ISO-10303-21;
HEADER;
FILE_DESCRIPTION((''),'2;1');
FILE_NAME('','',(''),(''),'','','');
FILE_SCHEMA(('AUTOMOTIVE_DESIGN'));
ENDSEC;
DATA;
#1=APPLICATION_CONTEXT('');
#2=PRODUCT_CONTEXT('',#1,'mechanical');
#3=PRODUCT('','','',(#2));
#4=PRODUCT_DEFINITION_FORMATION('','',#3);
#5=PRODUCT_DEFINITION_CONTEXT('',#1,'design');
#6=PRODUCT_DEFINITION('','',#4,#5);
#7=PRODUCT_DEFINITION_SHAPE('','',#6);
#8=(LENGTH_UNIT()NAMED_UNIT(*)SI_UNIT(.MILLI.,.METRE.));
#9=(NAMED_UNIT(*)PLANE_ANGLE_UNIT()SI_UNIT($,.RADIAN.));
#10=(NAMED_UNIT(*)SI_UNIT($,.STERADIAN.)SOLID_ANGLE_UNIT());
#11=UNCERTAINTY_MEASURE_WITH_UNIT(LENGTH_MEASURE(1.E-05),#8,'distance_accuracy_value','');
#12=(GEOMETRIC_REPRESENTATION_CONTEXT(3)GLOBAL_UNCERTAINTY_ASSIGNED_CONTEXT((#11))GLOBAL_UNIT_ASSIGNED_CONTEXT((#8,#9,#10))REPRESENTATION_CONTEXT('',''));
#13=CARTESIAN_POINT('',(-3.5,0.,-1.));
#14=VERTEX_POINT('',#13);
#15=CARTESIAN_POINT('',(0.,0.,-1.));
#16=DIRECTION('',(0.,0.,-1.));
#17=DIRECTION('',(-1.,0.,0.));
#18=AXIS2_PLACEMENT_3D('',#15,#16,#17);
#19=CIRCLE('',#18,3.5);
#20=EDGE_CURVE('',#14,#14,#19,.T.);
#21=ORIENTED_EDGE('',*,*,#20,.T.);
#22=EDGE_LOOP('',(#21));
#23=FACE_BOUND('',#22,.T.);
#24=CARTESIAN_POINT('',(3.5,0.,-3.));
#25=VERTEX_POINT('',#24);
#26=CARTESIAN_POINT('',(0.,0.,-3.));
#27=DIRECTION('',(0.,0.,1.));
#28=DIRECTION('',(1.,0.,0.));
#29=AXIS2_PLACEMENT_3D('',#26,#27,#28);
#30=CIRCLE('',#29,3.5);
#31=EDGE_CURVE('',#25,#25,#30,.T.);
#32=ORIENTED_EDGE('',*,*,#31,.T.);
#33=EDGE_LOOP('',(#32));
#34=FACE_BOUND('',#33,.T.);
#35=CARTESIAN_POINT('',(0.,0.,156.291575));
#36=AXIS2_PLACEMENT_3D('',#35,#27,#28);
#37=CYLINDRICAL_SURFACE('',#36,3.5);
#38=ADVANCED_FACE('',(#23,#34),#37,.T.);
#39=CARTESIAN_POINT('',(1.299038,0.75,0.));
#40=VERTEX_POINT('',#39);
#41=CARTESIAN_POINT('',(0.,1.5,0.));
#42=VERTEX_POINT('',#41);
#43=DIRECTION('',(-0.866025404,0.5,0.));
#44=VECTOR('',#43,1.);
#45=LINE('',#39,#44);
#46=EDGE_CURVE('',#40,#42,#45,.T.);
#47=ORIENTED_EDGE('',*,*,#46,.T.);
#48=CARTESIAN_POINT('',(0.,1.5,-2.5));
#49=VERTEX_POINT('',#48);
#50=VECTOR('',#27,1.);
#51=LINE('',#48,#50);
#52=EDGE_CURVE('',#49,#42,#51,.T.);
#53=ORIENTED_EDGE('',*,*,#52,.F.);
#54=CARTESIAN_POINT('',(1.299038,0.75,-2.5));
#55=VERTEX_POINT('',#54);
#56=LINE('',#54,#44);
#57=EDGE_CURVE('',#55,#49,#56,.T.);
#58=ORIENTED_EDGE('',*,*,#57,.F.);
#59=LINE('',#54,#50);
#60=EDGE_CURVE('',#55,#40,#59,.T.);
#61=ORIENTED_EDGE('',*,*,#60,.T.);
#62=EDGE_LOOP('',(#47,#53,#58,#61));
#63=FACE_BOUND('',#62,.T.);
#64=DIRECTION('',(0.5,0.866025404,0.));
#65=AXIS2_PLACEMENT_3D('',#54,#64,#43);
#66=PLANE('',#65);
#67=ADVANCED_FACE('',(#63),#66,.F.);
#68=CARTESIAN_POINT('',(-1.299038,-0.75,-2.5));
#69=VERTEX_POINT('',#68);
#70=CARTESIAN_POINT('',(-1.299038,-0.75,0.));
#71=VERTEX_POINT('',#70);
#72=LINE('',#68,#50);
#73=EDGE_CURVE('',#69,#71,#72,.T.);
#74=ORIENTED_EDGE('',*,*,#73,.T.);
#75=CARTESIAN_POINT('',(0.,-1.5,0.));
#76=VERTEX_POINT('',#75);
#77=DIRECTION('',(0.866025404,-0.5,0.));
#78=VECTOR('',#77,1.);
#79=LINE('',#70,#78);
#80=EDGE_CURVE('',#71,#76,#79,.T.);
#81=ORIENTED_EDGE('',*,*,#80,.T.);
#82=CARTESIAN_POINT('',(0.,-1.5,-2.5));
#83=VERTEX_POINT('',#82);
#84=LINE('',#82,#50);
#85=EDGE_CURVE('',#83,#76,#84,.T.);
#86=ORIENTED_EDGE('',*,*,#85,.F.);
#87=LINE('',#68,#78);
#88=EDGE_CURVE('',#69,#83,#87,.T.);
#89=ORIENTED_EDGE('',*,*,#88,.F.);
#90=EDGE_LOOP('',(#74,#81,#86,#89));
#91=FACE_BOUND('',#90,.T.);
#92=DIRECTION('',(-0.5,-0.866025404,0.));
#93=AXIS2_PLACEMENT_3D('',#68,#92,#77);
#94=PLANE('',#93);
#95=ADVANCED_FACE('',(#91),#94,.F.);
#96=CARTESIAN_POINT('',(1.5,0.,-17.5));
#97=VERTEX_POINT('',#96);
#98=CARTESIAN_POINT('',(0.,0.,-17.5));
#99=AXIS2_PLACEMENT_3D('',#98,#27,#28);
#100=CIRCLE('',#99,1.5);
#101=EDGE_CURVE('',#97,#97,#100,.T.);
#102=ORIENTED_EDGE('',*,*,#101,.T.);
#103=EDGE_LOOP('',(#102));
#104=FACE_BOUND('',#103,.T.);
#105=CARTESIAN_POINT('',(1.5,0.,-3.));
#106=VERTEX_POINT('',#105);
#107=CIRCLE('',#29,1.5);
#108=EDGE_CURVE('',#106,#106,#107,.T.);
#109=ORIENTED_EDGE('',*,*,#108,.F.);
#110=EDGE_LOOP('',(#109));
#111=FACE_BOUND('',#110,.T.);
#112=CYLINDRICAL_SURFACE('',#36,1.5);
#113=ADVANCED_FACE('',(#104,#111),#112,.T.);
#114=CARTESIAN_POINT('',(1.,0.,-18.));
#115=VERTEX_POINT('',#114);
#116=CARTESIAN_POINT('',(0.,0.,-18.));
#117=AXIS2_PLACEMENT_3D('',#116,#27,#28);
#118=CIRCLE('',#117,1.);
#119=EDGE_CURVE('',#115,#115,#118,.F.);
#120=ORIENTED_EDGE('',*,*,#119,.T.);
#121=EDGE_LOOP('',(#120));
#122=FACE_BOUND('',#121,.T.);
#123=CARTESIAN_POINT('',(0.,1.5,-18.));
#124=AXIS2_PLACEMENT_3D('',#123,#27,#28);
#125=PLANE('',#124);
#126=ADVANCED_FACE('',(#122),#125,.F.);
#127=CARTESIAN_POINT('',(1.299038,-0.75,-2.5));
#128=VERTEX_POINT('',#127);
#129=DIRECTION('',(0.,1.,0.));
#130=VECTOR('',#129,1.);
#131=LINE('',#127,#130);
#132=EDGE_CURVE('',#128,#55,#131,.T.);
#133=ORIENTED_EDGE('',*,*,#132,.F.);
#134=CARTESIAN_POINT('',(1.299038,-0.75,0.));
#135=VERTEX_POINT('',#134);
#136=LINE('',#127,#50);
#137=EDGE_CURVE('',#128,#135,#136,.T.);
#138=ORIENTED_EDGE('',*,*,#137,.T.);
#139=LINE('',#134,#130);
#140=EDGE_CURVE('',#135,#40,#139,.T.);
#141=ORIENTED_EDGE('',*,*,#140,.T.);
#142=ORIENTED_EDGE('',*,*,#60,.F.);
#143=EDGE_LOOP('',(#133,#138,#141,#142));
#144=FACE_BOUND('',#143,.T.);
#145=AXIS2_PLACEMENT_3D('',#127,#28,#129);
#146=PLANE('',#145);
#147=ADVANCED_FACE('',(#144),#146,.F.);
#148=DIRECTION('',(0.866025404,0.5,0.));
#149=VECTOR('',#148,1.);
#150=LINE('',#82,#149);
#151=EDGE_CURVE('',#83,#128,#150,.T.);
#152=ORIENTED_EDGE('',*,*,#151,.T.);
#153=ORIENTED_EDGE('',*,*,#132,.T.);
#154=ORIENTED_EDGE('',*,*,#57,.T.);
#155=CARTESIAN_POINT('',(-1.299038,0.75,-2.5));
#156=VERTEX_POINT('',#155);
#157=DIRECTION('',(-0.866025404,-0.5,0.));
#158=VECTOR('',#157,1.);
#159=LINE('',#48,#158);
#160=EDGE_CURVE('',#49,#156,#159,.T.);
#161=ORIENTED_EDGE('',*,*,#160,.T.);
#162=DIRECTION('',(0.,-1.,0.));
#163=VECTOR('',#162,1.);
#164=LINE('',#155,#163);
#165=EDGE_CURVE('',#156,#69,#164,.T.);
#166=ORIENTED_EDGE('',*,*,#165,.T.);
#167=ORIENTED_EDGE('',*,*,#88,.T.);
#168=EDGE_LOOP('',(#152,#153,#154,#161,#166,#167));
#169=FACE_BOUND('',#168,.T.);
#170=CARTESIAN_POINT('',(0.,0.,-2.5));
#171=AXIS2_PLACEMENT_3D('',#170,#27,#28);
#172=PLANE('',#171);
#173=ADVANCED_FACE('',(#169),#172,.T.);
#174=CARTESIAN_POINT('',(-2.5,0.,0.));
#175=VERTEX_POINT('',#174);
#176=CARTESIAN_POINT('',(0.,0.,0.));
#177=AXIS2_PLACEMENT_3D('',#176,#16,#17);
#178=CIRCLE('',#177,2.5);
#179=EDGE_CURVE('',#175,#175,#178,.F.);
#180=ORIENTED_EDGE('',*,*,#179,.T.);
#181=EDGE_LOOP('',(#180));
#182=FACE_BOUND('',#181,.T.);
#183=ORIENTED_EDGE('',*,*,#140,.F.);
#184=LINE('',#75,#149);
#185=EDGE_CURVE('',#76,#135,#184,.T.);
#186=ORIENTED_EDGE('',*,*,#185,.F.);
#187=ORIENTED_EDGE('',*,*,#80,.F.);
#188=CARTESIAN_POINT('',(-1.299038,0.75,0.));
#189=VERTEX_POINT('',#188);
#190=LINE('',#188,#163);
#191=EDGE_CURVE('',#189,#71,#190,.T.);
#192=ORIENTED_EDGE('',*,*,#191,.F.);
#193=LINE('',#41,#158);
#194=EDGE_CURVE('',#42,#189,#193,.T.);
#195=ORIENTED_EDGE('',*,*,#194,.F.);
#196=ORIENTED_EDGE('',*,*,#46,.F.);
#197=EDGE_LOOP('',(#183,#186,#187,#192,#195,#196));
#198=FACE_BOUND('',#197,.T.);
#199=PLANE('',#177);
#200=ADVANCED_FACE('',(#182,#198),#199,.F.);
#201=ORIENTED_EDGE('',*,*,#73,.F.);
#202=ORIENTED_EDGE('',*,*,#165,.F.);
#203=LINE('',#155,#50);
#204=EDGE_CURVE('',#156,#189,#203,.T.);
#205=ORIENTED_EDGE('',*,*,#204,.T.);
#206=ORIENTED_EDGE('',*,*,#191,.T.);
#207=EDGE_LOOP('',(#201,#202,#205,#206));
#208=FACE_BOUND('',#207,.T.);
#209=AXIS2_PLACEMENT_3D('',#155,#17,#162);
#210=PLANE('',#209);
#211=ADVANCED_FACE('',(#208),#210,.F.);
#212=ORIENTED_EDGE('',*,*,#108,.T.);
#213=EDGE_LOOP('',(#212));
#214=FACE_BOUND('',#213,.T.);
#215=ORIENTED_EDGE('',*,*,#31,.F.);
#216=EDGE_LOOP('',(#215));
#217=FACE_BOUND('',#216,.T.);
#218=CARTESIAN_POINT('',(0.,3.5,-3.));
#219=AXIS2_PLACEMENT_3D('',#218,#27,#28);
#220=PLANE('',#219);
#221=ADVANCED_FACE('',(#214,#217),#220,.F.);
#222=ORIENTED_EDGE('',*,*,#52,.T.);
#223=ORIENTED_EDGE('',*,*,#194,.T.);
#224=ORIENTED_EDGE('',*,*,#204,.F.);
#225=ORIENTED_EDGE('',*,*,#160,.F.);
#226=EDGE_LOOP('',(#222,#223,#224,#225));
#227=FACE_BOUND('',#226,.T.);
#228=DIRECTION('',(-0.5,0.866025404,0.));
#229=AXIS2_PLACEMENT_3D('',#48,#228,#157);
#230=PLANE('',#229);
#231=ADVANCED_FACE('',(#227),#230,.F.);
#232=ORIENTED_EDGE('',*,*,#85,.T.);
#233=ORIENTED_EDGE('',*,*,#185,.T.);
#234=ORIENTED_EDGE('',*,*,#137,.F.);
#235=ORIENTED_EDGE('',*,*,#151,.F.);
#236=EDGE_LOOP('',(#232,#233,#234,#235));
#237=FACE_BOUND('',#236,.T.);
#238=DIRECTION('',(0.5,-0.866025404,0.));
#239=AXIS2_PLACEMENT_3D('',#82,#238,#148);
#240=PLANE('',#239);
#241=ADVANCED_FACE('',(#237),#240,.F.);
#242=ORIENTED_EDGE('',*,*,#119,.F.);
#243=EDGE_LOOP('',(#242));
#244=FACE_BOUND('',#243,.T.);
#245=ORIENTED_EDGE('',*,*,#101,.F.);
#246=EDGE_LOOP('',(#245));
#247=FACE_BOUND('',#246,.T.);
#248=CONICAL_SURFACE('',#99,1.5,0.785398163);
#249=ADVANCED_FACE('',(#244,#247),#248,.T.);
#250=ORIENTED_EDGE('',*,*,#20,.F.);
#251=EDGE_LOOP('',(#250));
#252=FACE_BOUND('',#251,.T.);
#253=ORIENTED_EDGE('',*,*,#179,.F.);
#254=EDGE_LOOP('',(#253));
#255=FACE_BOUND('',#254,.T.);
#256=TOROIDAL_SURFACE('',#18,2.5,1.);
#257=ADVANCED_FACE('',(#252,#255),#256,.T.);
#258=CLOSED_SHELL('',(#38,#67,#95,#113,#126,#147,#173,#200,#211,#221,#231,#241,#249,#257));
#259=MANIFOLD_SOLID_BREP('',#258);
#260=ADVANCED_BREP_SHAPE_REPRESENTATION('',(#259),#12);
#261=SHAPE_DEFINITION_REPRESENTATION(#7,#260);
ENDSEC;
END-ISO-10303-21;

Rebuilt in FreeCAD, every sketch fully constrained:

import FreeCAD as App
import Part
import Sketcher
Q = App.Units.Quantity


def edges_at(feature, points):
    """Names of the edges that pass closest to the given points."""
    edges = feature.Shape.Edges
    near = lambda p: min(range(len(edges)), key=lambda i: edges[i].distToShape(Part.Vertex(*p))[0])
    return sorted({f"Edge{near(p) + 1}" for p in points})


def add_polygon(sketch, points):
    """Adds a closed chain of lines whose ends are joined by coincident constraints."""
    first, n = sketch.GeometryCount, len(points)
    for a, b in zip(points, points[1:] + points[:1]):
        sketch.addGeometry(Part.LineSegment(App.Vector(*a, 0), App.Vector(*b, 0)), False)
    for i in range(n):
        sketch.addConstraint(Sketcher.Constraint("Coincident", first + i, 2, first + (i + 1) % n, 1))

doc = App.newDocument("Part")
body = doc.addObject("PartDesign::Body", "Body")

# Sketch on YZ plane
sketch1 = body.newObject("Sketcher::SketchObject", "Sketch")
sketch1.AttachmentSupport = (doc.getObject("YZ_Plane"), [""])
sketch1.MapMode = "FlatFace"
add_polygon(sketch1, [(3.5, 0), (0, 0), (0, -18), (1.5, -18), (1.5, -3), (3.5, -3)])  # lines 0-5
sketch1.addConstraint([
    Sketcher.Constraint("Horizontal", 0),
    Sketcher.Constraint("Vertical", 1),
    Sketcher.Constraint("Horizontal", 2),
    Sketcher.Constraint("Vertical", 3),
    Sketcher.Constraint("Horizontal", 4),
    Sketcher.Constraint("Vertical", 5),
    Sketcher.Constraint("Coincident", 0, 2, -1, 1),
    Sketcher.Constraint("DistanceX", 4, 1, 4, 2, 2.0),
    Sketcher.Constraint("DistanceY", 1, 2, 1, 1, 18.0),
    Sketcher.Constraint("DistanceY", 3, 1, 3, 2, 15.0),
    Sketcher.Constraint("DistanceX", 0, 2, 0, 1, 3.5),
])
revolution = body.newObject("PartDesign::Revolution", "Revolution")
revolution.Profile = sketch1
revolution.ReferenceAxis = (sketch1, ["V_Axis"])
revolution.Angle = 360

# Sketch on XY plane
sketch2 = body.newObject("Sketcher::SketchObject", "Sketch001")
sketch2.AttachmentSupport = (doc.getObject("XY_Plane"), [""])
sketch2.MapMode = "FlatFace"
add_polygon(sketch2, [(0, 1.5), (-1.299038, 0.75), (-1.299038, -0.75), (0, -1.5), (1.299038, -0.75), (1.299038, 0.75)])  # lines 0-5
sketch2.addConstraint([
    Sketcher.Constraint("Vertical", 1),
    Sketcher.Constraint("Vertical", 4),
    Sketcher.Constraint("Symmetric", 0, 2, 3, 2, -1, 1),
    Sketcher.Constraint("Symmetric", 2, 2, 5, 2, -1, 1),
    Sketcher.Constraint("PointOnObject", 2, 2, -2),
    Sketcher.Constraint("Parallel", 2, 5),
    Sketcher.Constraint("Horizontal", 1, 2, 3, 2),
    Sketcher.Constraint("Angle", 0, Q("-150 deg")),
    Sketcher.Constraint("DistanceY", 1, 2, 1, 1, 1.5),
    Sketcher.Constraint("DistanceY", 2, 2, 5, 2, 3.0),
])
pocket1 = body.newObject("PartDesign::Pocket", "Pocket")
pocket1.Profile = sketch2
pocket1.Length = 2.5
doc.recompute()

chamfer = body.newObject("PartDesign::Chamfer", "Chamfer")
chamfer.Base = (pocket1, edges_at(pocket1, [(-1.5, 0, -18)]))
chamfer.Size = 0.5
doc.recompute()

fillet = body.newObject("PartDesign::Fillet", "Fillet")
fillet.Base = (chamfer, edges_at(chamfer, [(-3.5, 0, 0)]))
fillet.Radius = 1

doc.recompute()
